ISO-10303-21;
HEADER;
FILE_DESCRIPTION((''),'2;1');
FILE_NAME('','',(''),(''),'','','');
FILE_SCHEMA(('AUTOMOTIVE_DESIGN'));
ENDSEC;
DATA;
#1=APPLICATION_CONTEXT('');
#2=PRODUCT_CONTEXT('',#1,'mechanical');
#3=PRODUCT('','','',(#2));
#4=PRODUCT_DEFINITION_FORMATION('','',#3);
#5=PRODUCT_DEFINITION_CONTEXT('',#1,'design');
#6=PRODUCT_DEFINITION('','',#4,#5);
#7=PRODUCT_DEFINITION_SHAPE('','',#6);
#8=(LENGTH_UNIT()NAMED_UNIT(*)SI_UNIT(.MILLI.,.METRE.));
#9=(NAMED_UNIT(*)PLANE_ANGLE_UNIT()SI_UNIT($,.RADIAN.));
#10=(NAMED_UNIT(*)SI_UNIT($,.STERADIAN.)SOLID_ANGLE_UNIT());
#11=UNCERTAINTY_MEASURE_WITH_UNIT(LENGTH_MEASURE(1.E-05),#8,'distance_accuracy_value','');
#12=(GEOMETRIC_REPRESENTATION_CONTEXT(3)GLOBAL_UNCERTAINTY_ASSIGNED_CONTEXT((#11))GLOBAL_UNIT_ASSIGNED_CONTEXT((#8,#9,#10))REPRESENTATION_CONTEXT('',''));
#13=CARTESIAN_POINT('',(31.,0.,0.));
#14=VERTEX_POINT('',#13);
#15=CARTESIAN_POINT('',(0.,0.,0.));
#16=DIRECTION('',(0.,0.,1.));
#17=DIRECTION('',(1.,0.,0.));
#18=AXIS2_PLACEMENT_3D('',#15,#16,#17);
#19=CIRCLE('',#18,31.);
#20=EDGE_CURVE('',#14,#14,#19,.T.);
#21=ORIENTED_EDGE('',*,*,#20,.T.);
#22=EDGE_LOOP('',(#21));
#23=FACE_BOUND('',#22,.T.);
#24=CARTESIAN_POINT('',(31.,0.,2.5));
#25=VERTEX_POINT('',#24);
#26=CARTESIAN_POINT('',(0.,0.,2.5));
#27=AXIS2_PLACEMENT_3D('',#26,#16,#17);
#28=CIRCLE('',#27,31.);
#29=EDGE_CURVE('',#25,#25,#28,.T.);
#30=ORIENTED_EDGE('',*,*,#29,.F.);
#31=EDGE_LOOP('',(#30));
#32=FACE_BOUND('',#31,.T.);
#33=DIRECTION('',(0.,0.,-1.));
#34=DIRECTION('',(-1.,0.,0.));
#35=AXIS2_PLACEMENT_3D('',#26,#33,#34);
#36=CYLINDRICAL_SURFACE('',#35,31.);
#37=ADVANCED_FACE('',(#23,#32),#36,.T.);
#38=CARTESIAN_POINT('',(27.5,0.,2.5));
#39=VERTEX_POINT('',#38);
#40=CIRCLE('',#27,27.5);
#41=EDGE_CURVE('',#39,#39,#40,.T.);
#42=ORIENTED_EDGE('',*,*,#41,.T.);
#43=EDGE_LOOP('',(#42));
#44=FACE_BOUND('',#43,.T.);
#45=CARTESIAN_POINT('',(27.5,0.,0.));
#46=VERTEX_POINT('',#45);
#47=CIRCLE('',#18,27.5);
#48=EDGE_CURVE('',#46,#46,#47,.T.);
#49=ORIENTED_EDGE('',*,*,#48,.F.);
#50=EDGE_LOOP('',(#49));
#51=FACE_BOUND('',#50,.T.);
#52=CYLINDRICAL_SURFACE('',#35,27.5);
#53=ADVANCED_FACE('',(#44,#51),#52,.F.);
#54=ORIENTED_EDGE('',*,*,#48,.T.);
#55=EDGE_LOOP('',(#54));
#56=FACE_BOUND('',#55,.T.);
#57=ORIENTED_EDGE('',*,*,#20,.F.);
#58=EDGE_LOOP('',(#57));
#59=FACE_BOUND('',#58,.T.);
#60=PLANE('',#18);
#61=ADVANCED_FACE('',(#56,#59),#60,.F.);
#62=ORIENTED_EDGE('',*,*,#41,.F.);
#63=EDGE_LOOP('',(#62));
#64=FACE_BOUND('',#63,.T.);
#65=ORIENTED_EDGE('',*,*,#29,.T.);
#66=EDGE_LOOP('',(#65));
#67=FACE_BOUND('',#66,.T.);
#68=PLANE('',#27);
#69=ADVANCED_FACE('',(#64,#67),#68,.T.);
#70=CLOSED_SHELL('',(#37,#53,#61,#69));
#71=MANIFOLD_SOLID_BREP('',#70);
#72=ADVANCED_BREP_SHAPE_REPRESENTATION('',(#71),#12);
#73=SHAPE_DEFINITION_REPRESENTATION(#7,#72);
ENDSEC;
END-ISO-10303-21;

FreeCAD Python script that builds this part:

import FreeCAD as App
import Part
import Sketcher

doc = App.newDocument("Part")
body = doc.addObject("PartDesign::Body", "Body")

# Sketch on XY plane
sketch1 = doc.addObject("Sketcher::SketchObject", "Sketch")
body.addObject(sketch1)
sketch1.AttachmentSupport = (doc.XY_Plane, [""])
sketch1.MapMode = "FlatFace"
sketch1.addGeometry(Part.Circle(App.Vector(0, 0, 0), App.Vector(0, 0, 1), 31), False)
sketch1.addGeometry(Part.Circle(App.Vector(0, 0, 0), App.Vector(0, 0, 1), 27.5), False)
sketch1.addConstraint(Sketcher.Constraint("Coincident", 0, 3, -1, 1))
sketch1.addConstraint(Sketcher.Constraint("Coincident", 1, 3, -1, 1))
sketch1.addConstraint(Sketcher.Constraint("Diameter", 0, 62.0))
sketch1.addConstraint(Sketcher.Constraint("Diameter", 1, 55.0))
pad1 = doc.addObject("PartDesign::Pad", "Pad")
body.addObject(pad1)
pad1.Profile = sketch1
pad1.Length = 2.5

doc.recompute()
